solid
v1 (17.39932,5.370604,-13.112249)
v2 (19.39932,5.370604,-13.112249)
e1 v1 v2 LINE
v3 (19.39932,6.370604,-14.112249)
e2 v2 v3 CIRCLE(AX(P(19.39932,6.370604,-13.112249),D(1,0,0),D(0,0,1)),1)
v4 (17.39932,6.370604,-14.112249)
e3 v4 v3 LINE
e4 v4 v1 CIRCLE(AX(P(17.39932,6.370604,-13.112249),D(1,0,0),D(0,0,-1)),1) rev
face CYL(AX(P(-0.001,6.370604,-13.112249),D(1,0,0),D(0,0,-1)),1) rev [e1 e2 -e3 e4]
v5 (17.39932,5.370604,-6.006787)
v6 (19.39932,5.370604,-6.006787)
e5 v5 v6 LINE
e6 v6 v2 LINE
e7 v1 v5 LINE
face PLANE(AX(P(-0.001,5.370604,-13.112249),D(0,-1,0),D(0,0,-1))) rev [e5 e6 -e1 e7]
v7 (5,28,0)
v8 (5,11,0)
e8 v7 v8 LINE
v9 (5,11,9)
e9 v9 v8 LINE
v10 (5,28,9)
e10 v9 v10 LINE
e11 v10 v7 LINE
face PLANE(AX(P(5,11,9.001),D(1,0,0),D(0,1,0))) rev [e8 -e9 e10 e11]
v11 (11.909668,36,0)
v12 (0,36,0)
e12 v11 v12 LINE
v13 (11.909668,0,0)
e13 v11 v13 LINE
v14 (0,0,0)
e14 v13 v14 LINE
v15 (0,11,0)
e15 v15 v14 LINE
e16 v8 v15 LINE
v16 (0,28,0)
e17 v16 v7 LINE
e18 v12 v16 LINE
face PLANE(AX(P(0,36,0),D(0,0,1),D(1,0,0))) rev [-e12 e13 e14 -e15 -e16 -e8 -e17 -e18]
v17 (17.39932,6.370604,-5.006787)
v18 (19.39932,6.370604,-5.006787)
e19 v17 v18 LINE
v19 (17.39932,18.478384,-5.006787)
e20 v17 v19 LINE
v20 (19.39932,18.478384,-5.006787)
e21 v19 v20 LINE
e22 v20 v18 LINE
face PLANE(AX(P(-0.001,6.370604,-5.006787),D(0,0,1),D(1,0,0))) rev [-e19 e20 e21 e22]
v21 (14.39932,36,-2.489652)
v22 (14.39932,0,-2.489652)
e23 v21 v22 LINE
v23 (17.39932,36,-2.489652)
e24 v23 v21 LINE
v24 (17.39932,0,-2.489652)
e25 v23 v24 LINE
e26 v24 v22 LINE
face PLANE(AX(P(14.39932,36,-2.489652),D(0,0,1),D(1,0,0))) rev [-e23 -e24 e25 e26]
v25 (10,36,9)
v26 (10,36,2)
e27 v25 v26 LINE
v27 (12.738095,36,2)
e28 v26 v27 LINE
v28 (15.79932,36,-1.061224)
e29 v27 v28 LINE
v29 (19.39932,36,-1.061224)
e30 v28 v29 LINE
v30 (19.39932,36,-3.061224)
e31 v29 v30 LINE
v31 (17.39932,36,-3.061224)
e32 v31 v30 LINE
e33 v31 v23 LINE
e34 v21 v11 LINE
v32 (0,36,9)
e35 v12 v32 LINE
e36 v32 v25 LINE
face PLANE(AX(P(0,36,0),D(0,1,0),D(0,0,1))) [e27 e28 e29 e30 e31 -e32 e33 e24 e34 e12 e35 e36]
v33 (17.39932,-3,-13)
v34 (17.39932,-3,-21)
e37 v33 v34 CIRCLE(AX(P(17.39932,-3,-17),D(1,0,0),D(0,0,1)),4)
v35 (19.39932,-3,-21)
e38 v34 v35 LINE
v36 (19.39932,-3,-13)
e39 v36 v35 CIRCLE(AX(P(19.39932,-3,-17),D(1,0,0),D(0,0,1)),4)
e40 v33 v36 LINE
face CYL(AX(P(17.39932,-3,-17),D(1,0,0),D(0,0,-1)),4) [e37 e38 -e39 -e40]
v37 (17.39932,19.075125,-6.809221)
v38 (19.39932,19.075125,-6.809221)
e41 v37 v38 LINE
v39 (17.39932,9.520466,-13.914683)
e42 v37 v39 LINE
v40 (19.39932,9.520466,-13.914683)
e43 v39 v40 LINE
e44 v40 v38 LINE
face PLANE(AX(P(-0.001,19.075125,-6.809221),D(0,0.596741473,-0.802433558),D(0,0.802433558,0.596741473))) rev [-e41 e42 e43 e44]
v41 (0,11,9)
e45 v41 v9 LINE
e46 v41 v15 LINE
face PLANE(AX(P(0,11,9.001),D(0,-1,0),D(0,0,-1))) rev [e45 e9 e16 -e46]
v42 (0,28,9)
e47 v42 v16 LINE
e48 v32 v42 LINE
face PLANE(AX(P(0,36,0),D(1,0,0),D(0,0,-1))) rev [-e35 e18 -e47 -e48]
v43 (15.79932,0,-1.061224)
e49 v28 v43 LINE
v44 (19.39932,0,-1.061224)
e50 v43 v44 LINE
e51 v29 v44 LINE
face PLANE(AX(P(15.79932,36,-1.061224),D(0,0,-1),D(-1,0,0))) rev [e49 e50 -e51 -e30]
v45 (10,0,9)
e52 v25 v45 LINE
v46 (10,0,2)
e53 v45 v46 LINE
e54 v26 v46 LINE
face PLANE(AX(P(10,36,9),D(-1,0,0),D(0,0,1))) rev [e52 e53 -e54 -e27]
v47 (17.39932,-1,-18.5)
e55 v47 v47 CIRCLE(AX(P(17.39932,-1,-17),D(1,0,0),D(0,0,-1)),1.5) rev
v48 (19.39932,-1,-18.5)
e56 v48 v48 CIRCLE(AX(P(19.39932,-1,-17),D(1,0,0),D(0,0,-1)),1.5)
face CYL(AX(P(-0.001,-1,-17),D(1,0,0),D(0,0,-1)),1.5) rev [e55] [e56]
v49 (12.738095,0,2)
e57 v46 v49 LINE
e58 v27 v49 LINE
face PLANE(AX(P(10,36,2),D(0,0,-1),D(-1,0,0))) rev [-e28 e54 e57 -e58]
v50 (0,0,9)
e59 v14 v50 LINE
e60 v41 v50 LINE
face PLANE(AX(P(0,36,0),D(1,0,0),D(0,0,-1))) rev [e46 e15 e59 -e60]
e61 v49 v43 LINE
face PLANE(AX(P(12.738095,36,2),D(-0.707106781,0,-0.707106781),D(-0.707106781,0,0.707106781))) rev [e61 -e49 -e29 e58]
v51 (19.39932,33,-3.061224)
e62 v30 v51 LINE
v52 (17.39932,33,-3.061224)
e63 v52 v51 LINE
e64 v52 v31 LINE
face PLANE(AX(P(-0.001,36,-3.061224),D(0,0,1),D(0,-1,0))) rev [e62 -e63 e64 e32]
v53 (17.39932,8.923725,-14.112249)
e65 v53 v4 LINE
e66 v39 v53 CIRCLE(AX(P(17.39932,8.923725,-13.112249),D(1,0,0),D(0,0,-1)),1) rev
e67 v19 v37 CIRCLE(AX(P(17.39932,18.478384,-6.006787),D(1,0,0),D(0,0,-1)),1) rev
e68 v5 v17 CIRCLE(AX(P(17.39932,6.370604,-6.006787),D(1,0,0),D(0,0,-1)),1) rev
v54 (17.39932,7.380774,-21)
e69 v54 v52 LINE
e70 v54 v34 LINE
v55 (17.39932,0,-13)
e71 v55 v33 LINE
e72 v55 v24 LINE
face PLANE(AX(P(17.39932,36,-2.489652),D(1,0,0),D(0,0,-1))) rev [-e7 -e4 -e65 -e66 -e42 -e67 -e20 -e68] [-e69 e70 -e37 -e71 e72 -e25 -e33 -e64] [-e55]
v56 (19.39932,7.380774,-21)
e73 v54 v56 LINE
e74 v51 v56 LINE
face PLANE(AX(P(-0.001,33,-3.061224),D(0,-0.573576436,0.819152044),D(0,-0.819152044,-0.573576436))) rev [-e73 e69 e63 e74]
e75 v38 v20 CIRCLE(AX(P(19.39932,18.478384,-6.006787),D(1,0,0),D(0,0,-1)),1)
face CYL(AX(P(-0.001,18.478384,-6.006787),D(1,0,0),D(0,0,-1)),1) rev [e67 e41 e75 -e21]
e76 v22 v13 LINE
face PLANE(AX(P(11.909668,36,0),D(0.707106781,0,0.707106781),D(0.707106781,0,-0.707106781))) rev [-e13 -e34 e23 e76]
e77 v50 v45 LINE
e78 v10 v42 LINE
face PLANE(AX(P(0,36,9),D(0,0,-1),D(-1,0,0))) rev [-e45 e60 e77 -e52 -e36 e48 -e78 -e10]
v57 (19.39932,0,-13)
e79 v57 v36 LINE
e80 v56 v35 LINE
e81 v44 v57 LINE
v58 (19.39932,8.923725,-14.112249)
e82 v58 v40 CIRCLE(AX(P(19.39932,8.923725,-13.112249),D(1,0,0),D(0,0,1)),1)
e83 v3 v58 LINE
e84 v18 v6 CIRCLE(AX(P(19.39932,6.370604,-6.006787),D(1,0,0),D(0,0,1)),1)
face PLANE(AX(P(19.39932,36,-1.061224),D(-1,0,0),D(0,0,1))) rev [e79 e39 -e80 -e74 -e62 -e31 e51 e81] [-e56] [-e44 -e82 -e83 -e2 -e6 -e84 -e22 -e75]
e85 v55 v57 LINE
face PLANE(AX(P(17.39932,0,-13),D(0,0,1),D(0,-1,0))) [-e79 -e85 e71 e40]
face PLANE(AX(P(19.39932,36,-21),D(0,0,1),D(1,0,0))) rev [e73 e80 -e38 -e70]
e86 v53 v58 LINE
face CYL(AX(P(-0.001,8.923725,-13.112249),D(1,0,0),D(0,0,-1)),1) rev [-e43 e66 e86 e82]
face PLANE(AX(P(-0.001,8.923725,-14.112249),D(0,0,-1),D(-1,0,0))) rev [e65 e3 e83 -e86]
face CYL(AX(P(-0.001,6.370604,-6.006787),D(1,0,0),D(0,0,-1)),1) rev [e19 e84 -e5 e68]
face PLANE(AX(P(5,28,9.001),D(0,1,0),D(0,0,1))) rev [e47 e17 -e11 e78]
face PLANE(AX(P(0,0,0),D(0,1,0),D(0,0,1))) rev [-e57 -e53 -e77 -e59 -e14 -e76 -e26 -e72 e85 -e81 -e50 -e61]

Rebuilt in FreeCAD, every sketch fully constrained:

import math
import FreeCAD as App
import Part
import Sketcher

V = App.Vector
Q = App.Units.Quantity

doc = App.newDocument("Part")
body = doc.addObject("PartDesign::Body", "Body")

# Sketch on XZ plane
sketch1 = body.newObject("Sketcher::SketchObject", "Sketch")
sketch1.AttachmentSupport = (doc.getObject("XZ_Plane"), [""])
sketch1.MapMode = "FlatFace"
sketch1.addGeometry(Part.LineSegment(V(11.909668, 0, 0), V(0, 0, 0)), False)
sketch1.addGeometry(Part.LineSegment(V(0, 0, 0), V(0, 9, 0)), False)
sketch1.addGeometry(Part.LineSegment(V(0, 9, 0), V(10, 9, 0)), False)
sketch1.addGeometry(Part.LineSegment(V(10, 9, 0), V(10, 2, 0)), False)
sketch1.addGeometry(Part.LineSegment(V(10, 2, 0), V(12.738095, 2, 0)), False)
sketch1.addGeometry(Part.LineSegment(V(12.738095, 2, 0), V(15.79932, -1.061224, 0)), False)
sketch1.addGeometry(Part.LineSegment(V(15.79932, -1.061224, 0), V(19.39932, -1.061224, 0)), False)
sketch1.addGeometry(Part.LineSegment(V(19.39932, -1.061224, 0), V(19.39932, -21, 0)), False)
sketch1.addGeometry(Part.LineSegment(V(19.39932, -21, 0), V(17.39932, -21, 0)), False)
sketch1.addGeometry(Part.LineSegment(V(17.39932, -21, 0), V(17.39932, -2.489652, 0)), False)
sketch1.addGeometry(Part.LineSegment(V(17.39932, -2.489652, 0), V(14.39932, -2.489652, 0)), False)
sketch1.addGeometry(Part.LineSegment(V(14.39932, -2.489652, 0), V(11.909668, 0, 0)), False)
sketch1.addConstraint(Sketcher.Constraint("Coincident", 0, 2, 1, 1))
sketch1.addConstraint(Sketcher.Constraint("Coincident", 1, 2, 2, 1))
sketch1.addConstraint(Sketcher.Constraint("Coincident", 2, 2, 3, 1))
sketch1.addConstraint(Sketcher.Constraint("Coincident", 3, 2, 4, 1))
sketch1.addConstraint(Sketcher.Constraint("Coincident", 4, 2, 5, 1))
sketch1.addConstraint(Sketcher.Constraint("Coincident", 5, 2, 6, 1))
sketch1.addConstraint(Sketcher.Constraint("Coincident", 6, 2, 7, 1))
sketch1.addConstraint(Sketcher.Constraint("Coincident", 7, 2, 8, 1))
sketch1.addConstraint(Sketcher.Constraint("Coincident", 8, 2, 9, 1))
sketch1.addConstraint(Sketcher.Constraint("Coincident", 9, 2, 10, 1))
sketch1.addConstraint(Sketcher.Constraint("Coincident", 10, 2, 11, 1))
sketch1.addConstraint(Sketcher.Constraint("Coincident", 11, 2, 0, 1))
sketch1.addConstraint(Sketcher.Constraint("Horizontal", 0))
sketch1.addConstraint(Sketcher.Constraint("Vertical", 1))
sketch1.addConstraint(Sketcher.Constraint("Horizontal", 2))
sketch1.addConstraint(Sketcher.Constraint("Vertical", 3))
sketch1.addConstraint(Sketcher.Constraint("Horizontal", 4))
sketch1.addConstraint(Sketcher.Constraint("Horizontal", 6))
sketch1.addConstraint(Sketcher.Constraint("Vertical", 7))
sketch1.addConstraint(Sketcher.Constraint("Horizontal", 8))
sketch1.addConstraint(Sketcher.Constraint("Vertical", 9))
sketch1.addConstraint(Sketcher.Constraint("Horizontal", 10))
sketch1.addConstraint(Sketcher.Constraint("Coincident", 0, 2, -1, 1))
sketch1.addConstraint(Sketcher.Constraint("Parallel", 5, 11))
sketch1.addConstraint(Sketcher.Constraint("DistanceX", 2, 1, 2, 2, 10.0))
sketch1.addConstraint(Sketcher.Constraint("DistanceX", 8, 2, 8, 1, 2.0))
sketch1.addConstraint(Sketcher.Constraint("DistanceX", 10, 2, 10, 1, 3.0))
sketch1.addConstraint(Sketcher.Constraint("DistanceY", 1, 1, 1, 2, 9.0))
sketch1.addConstraint(Sketcher.Constraint("DistanceY", 3, 2, 3, 1, 7.0))
sketch1.addConstraint(Sketcher.Constraint("Angle", 5, Q("-45 deg")))
sketch1.addConstraint(Sketcher.Constraint("DistanceX", 6, 1, 6, 2, 3.6))
sketch1.addConstraint(Sketcher.Constraint("DistanceY", 7, 2, -1, 1, 21.0))
sketch1.addConstraint(Sketcher.Constraint("Distance", 11, 3.520899))
sketch1.addConstraint(Sketcher.Constraint("DistanceX", 0, 2, 0, 1, 11.909668))
sketch1.addConstraint(Sketcher.Constraint("DistanceX", 4, 1, 4, 2, 2.738095))
pad1 = body.newObject("PartDesign::Pad", "Pad")
pad1.Profile = sketch1
pad1.Length = 36
pad1.Reversed = True

# Sketch on YZ plane
sketch2 = body.newObject("Sketcher::SketchObject", "Sketch001")
sketch2.AttachmentSupport = (doc.getObject("YZ_Plane"), [""])
sketch2.MapMode = "FlatFace"
sketch2.AttachmentOffset = App.Placement(V(0, 0, 19.39932), App.Rotation())
sketch2.addGeometry(Part.LineSegment(V(36, -3.061224, 0), V(33, -3.061224, 0)), False)
sketch2.addGeometry(Part.LineSegment(V(33, -3.061224, 0), V(7.380774, -21, 0)), False)
sketch2.addGeometry(Part.LineSegment(V(7.380774, -21, 0), V(36, -21, 0)), False)
sketch2.addGeometry(Part.LineSegment(V(36, -21, 0), V(36, -3.061224, 0)), False)
sketch2.addConstraint(Sketcher.Constraint("Coincident", 0, 2, 1, 1))
sketch2.addConstraint(Sketcher.Constraint("Coincident", 1, 2, 2, 1))
sketch2.addConstraint(Sketcher.Constraint("Coincident", 2, 2, 3, 1))
sketch2.addConstraint(Sketcher.Constraint("Coincident", 3, 2, 0, 1))
sketch2.addConstraint(Sketcher.Constraint("Horizontal", 0))
sketch2.addConstraint(Sketcher.Constraint("Horizontal", 2))
sketch2.addConstraint(Sketcher.Constraint("Vertical", 3))
sketch2.addConstraint(Sketcher.Constraint("DistanceX", 0, 2, 0, 1, 3.0))
sketch2.addConstraint(Sketcher.Constraint("Angle", 1, Q("-145 deg")))
sketch2.addConstraint(Sketcher.Constraint("DistanceX", -1, 1, 0, 2, 33.0))
sketch2.addConstraint(Sketcher.Constraint("DistanceY", 1, 2, -1, 1, 21.0))
sketch2.addConstraint(Sketcher.Constraint("Distance", 1, 31.275301))
pocket1 = body.newObject("PartDesign::Pocket", "Pocket")
pocket1.Profile = sketch2
pocket1.Type = "UpToFirst"

# Sketch on YZ plane
sketch3 = body.newObject("Sketcher::SketchObject", "Sketch002")
sketch3.AttachmentSupport = (doc.getObject("YZ_Plane"), [""])
sketch3.MapMode = "FlatFace"
sketch3.AttachmentOffset = App.Placement(V(0, 0, 19.39932), App.Rotation())
sketch3.addGeometry(Part.LineSegment(V(9.520466, -13.914683, 0), V(19.075125, -6.809221, 0)), False)
sketch3.addGeometry(Part.ArcOfCircle(Part.Circle(V(18.478384, -6.006787, 0), V(0, 0, 1), 1), math.radians(-53.363122), math.radians(90)), False)
sketch3.addGeometry(Part.LineSegment(V(18.478384, -5.006787, 0), V(6.370604, -5.006787, 0)), False)
sketch3.addGeometry(Part.ArcOfCircle(Part.Circle(V(6.370604, -6.006787, 0), V(0, 0, 1), 1), math.radians(90), math.radians(180)), False)
sketch3.addGeometry(Part.LineSegment(V(5.370604, -6.006787, 0), V(5.370604, -13.112249, 0)), False)
sketch3.addGeometry(Part.ArcOfCircle(Part.Circle(V(6.370604, -13.112249, 0), V(0, 0, 1), 1), math.radians(-180), math.radians(-90)), False)
sketch3.addGeometry(Part.LineSegment(V(6.370604, -14.112249, 0), V(8.923725, -14.112249, 0)), False)
sketch3.addGeometry(Part.ArcOfCircle(Part.Circle(V(8.923725, -13.112249, 0), V(0, 0, 1), 1), math.radians(-90), math.radians(-53.363123)), False)
sketch3.addConstraint(Sketcher.Constraint("Tangent", 0, 2, 1, 1))
sketch3.addConstraint(Sketcher.Constraint("Tangent", 1, 2, 2, 1))
sketch3.addConstraint(Sketcher.Constraint("Tangent", 2, 2, 3, 1))
sketch3.addConstraint(Sketcher.Constraint("Tangent", 3, 2, 4, 1))
sketch3.addConstraint(Sketcher.Constraint("Tangent", 4, 2, 5, 1))
sketch3.addConstraint(Sketcher.Constraint("Tangent", 5, 2, 6, 1))
sketch3.addConstraint(Sketcher.Constraint("Tangent", 6, 2, 7, 1))
sketch3.addConstraint(Sketcher.Constraint("Tangent", 7, 2, 0, 1))
sketch3.addConstraint(Sketcher.Constraint("Horizontal", 2))
sketch3.addConstraint(Sketcher.Constraint("Vertical", 4))
sketch3.addConstraint(Sketcher.Constraint("Horizontal", 6))
sketch3.addConstraint(Sketcher.Constraint("Equal", 1, 3))
sketch3.addConstraint(Sketcher.Constraint("Equal", 3, 5))
sketch3.addConstraint(Sketcher.Constraint("Equal", 5, 7))
sketch3.addConstraint(Sketcher.Constraint("Radius", 1, 1.0))
sketch3.addConstraint(Sketcher.Constraint("DistanceX", 2, 2, 2, 1, 12.107779))
sketch3.addConstraint(Sketcher.Constraint("DistanceX", 6, 1, 6, 2, 2.55312))
sketch3.addConstraint(Sketcher.Constraint("DistanceX", 7, 3, 0, 2, 10.1514))
sketch3.addConstraint(Sketcher.Constraint("DistanceY", 5, 3, -1, 1, 13.112249))
sketch3.addConstraint(Sketcher.Constraint("DistanceX", -1, 1, 1, 3, 18.478384))
pocket2 = body.newObject("PartDesign::Pocket", "Pocket001")
pocket2.Profile = sketch3
pocket2.Type = "UpToFirst"

# Sketch on YZ plane
sketch4 = body.newObject("Sketcher::SketchObject", "Sketch003")
sketch4.AttachmentSupport = (doc.getObject("YZ_Plane"), [""])
sketch4.MapMode = "FlatFace"
sketch4.AttachmentOffset = App.Placement(V(0, 0, 19.39932), App.Rotation())
sketch4.addGeometry(Part.LineSegment(V(-3, -21, 0), V(0, -21, 0)), False)
sketch4.addGeometry(Part.LineSegment(V(0, -21, 0), V(0, -13, 0)), False)
sketch4.addGeometry(Part.LineSegment(V(0, -13, 0), V(-3, -13, 0)), False)
sketch4.addGeometry(Part.ArcOfCircle(Part.Circle(V(-3, -17, 0), V(0, 0, 1), 4), math.radians(90), math.radians(270)), False)
sketch4.addConstraint(Sketcher.Constraint("Coincident", 0, 2, 1, 1))
sketch4.addConstraint(Sketcher.Constraint("Coincident", 1, 2, 2, 1))
sketch4.addConstraint(Sketcher.Constraint("Tangent", 2, 2, 3, 1))
sketch4.addConstraint(Sketcher.Constraint("Tangent", 3, 2, 0, 1))
sketch4.addConstraint(Sketcher.Constraint("Horizontal", 0))
sketch4.addConstraint(Sketcher.Constraint("Vertical", 1))
sketch4.addConstraint(Sketcher.Constraint("Horizontal", 2))
sketch4.addConstraint(Sketcher.Constraint("PointOnObject", 0, 2, -2))
sketch4.addConstraint(Sketcher.Constraint("Radius", 3, 4.0))
sketch4.addConstraint(Sketcher.Constraint("DistanceX", 0, 1, 0, 2, 3.0))
sketch4.addConstraint(Sketcher.Constraint("DistanceY", 3, 3, -1, 1, 17.0))
pad2 = body.newObject("PartDesign::Pad", "Pad001")
pad2.Profile = sketch4
pad2.Length = 2
pad2.Reversed = True

# Sketch on XY plane
sketch5 = body.newObject("Sketcher::SketchObject", "Sketch004")
sketch5.AttachmentSupport = (doc.getObject("XY_Plane"), [""])
sketch5.MapMode = "FlatFace"
sketch5.addGeometry(Part.LineSegment(V(5, 28, 0), V(5, 11, 0)), False)
sketch5.addGeometry(Part.LineSegment(V(5, 11, 0), V(0, 11, 0)), False)
sketch5.addGeometry(Part.LineSegment(V(0, 11, 0), V(0, 28, 0)), False)
sketch5.addGeometry(Part.LineSegment(V(0, 28, 0), V(5, 28, 0)), False)
sketch5.addConstraint(Sketcher.Constraint("Coincident", 0, 2, 1, 1))
sketch5.addConstraint(Sketcher.Constraint("Coincident", 1, 2, 2, 1))
sketch5.addConstraint(Sketcher.Constraint("Coincident", 2, 2, 3, 1))
sketch5.addConstraint(Sketcher.Constraint("Coincident", 3, 2, 0, 1))
sketch5.addConstraint(Sketcher.Constraint("Vertical", 0))
sketch5.addConstraint(Sketcher.Constraint("Horizontal", 1))
sketch5.addConstraint(Sketcher.Constraint("Vertical", 2))
sketch5.addConstraint(Sketcher.Constraint("Horizontal", 3))
sketch5.addConstraint(Sketcher.Constraint("PointOnObject", 1, 2, -2))
sketch5.addConstraint(Sketcher.Constraint("DistanceX", 1, 2, 1, 1, 5.0))
sketch5.addConstraint(Sketcher.Constraint("DistanceY", 0, 2, 0, 1, 17.0))
sketch5.addConstraint(Sketcher.Constraint("DistanceY", -1, 1, 0, 2, 11.0))
pocket3 = body.newObject("PartDesign::Pocket", "Pocket002")
pocket3.Profile = sketch5
pocket3.Type = "UpToFirst"
pocket3.Reversed = True

# Sketch on YZ plane
sketch6 = body.newObject("Sketcher::SketchObject", "Sketch005")
sketch6.AttachmentSupport = (doc.getObject("YZ_Plane"), [""])
sketch6.MapMode = "FlatFace"
sketch6.AttachmentOffset = App.Placement(V(0, 0, 19.39932), App.Rotation())
sketch6.addGeometry(Part.Circle(V(-1, -17, 0), V(0, 0, 1), 1.5), False)
sketch6.addConstraint(Sketcher.Constraint("Diameter", 0, 3.0))
sketch6.addConstraint(Sketcher.Constraint("DistanceX", 0, 3, -1, 1, 1.0))
sketch6.addConstraint(Sketcher.Constraint("DistanceY", 0, 3, -1, 1, 17.0))
pocket4 = body.newObject("PartDesign::Pocket", "Pocket003")
pocket4.Profile = sketch6
pocket4.Type = "UpToFirst"

doc.recompute()
